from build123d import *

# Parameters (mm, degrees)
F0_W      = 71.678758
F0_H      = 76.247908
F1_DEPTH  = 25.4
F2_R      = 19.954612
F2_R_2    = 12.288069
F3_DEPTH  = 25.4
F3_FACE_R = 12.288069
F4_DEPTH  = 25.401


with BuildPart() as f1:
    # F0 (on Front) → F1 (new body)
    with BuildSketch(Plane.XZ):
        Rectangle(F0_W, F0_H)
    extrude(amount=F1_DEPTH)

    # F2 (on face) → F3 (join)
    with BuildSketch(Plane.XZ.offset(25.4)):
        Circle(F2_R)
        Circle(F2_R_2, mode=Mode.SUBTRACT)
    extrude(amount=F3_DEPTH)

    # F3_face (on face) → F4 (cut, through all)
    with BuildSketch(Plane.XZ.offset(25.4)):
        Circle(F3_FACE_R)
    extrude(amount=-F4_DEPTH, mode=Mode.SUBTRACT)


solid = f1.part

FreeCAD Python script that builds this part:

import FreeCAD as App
import Part
import Sketcher
from FreeCAD import Vector
Q = App.Units.Quantity


def add_polygon(sketch, points):
    """Adds a closed chain of lines whose ends are joined by coincident constraints."""
    first, n = sketch.GeometryCount, len(points)
    for a, b in zip(points, points[1:] + points[:1]):
        sketch.addGeometry(Part.LineSegment(App.Vector(*a, 0), App.Vector(*b, 0)), False)
    for i in range(n):
        sketch.addConstraint(Sketcher.Constraint("Coincident", first + i, 2, first + (i + 1) % n, 1))

doc = App.newDocument("Part")
body = doc.addObject("PartDesign::Body", "Body")

# Sketch on XZ plane
sketch1 = body.newObject("Sketcher::SketchObject", "Sketch")
sketch1.AttachmentSupport = (doc.getObject("XZ_Plane"), [""])
sketch1.MapMode = "FlatFace"
add_polygon(sketch1, [(-36, 38), (-36, -38), (36, -38), (36, 38)])  # lines 0-3
sketch1.addConstraint([
    Sketcher.Constraint("Vertical", 0),
    Sketcher.Constraint("Horizontal", 1),
    Sketcher.Constraint("Vertical", 2),
    Sketcher.Constraint("Horizontal", 3),
    Sketcher.Constraint("Symmetric", 0, 2, 2, 2, -1, 1),
    Sketcher.Constraint("DistanceX", 1, 1, 1, 2, 71.678758),
    Sketcher.Constraint("DistanceY", 0, 2, 0, 1, 76.247908),
])
pad1 = body.newObject("PartDesign::Pad", "Pad")
pad1.Profile = sketch1
pad1.Length = Q("1 in")

# Sketch on XZ plane
sketch2 = body.newObject("Sketcher::SketchObject", "Sketch001")
sketch2.AttachmentSupport = (doc.getObject("XZ_Plane"), [""])
sketch2.MapMode = "FlatFace"
sketch2.AttachmentOffset = App.Placement(Vector(0, 0, 1 * 25.4), App.Rotation())
sketch2.addGeometry([
    Part.Circle(Vector(0, 0, 0), Vector(0, 0, 1), 20),
    Part.Circle(Vector(0, 0, 0), Vector(0, 0, 1), 12),
], False)
sketch2.addConstraint([
    Sketcher.Constraint("Coincident", 0, 3, -1, 1),
    Sketcher.Constraint("Coincident", 1, 3, -1, 1),
    Sketcher.Constraint("Diameter", 1, 24.576138),
    Sketcher.Constraint("Diameter", 0, 39.909224),
])
pad2 = body.newObject("PartDesign::Pad", "Pad001")
pad2.Profile = sketch2
pad2.Length = Q("1 in")

# Sketch on XZ plane
sketch3 = body.newObject("Sketcher::SketchObject", "Sketch002")
sketch3.AttachmentSupport = (doc.getObject("XZ_Plane"), [""])
sketch3.MapMode = "FlatFace"
sketch3.AttachmentOffset = App.Placement(Vector(0, 0, 1 * 25.4), App.Rotation())
sketch3.addGeometry(Part.Circle(Vector(0, 0, 0), Vector(0, 0, 1), 12), False)
sketch3.addConstraint([
    Sketcher.Constraint("Coincident", 0, 3, -1, 1),
    Sketcher.Constraint("Diameter", 0, 24.576138),
])
pocket1 = body.newObject("PartDesign::Pocket", "Pocket")
pocket1.Profile = sketch3
pocket1.Type = "ThroughAll"

doc.recompute()
